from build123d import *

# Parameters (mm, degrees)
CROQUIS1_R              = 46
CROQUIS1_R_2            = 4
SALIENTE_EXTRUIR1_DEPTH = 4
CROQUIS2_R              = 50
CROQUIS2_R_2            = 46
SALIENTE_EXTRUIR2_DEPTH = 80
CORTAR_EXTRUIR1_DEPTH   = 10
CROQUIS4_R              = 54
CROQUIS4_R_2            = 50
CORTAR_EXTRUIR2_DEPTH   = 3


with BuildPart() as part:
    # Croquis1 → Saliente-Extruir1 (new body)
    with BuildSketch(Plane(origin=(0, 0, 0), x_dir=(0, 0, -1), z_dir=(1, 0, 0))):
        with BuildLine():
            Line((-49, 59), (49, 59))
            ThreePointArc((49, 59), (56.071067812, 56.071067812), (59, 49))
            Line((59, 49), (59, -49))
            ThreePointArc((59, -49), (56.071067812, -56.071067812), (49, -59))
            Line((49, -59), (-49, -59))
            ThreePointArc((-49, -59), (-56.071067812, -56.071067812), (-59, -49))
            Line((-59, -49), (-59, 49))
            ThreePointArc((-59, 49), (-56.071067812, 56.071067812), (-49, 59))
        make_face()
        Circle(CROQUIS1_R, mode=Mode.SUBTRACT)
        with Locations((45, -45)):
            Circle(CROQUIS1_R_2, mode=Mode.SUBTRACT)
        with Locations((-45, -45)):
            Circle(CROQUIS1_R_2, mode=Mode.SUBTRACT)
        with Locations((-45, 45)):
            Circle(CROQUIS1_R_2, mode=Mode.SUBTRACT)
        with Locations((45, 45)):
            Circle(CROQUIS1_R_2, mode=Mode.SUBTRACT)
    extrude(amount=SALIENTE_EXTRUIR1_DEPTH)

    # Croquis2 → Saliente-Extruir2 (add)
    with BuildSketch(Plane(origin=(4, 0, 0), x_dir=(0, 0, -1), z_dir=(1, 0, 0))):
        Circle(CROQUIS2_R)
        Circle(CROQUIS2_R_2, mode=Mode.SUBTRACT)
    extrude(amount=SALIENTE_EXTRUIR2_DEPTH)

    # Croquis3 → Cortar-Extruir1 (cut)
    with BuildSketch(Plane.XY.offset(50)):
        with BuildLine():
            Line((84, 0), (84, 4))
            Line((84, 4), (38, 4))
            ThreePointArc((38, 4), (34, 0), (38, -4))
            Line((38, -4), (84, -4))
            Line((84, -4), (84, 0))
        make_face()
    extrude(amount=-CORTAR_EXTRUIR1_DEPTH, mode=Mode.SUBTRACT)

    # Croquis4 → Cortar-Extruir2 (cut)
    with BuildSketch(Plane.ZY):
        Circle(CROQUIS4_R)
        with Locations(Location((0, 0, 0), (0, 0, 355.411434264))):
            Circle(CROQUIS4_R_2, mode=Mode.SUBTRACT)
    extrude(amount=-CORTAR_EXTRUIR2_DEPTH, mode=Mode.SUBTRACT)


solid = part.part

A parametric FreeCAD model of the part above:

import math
import FreeCAD as App
import Part
import Sketcher
from FreeCAD import Vector
Q = App.Units.Quantity

doc = App.newDocument("Part")
body = doc.addObject("PartDesign::Body", "Body")

sketch1 = doc.addObject("Sketcher::SketchObject", "Sketch")
body.addObject(sketch1)
sketch1.AttachmentSupport = (doc.YZ_Plane, [""])
sketch1.MapMode = "FlatFace"
sketch1.addGeometry([
    Part.LineSegment(Vector(59, -49, 0), Vector(59, 49, 0)),
    Part.ArcOfCircle(Part.Circle(Vector(49, 49, 0), Vector(0, 0, 1), 10), math.radians(0), math.radians(90)),
    Part.LineSegment(Vector(49, 59, 0), Vector(-49, 59, 0)),
    Part.ArcOfCircle(Part.Circle(Vector(-49, 49, 0), Vector(0, 0, 1), 10), math.radians(90), math.radians(180)),
    Part.LineSegment(Vector(-59, 49, 0), Vector(-59, -49, 0)),
    Part.ArcOfCircle(Part.Circle(Vector(-49, -49, 0), Vector(0, 0, 1), 10), math.radians(180), math.radians(270)),
    Part.LineSegment(Vector(-49, -59, 0), Vector(49, -59, 0)),
    Part.ArcOfCircle(Part.Circle(Vector(49, -49, 0), Vector(0, 0, 1), 10), math.radians(-90), math.radians(0)),
    Part.Circle(Vector(-45, -45, 0), Vector(0, 0, 1), 4),
    Part.Circle(Vector(0, 0, 0), Vector(0, 0, 1), 46),
    Part.Circle(Vector(-45, 45, 0), Vector(0, 0, 1), 4),
    Part.Circle(Vector(45, -45, 0), Vector(0, 0, 1), 4),
    Part.Circle(Vector(45, 45, 0), Vector(0, 0, 1), 4),
], False)
sketch1.addConstraint([
    Sketcher.Constraint("Tangent", 0, 2, 1, 1),
    Sketcher.Constraint("Tangent", 1, 2, 2, 1),
    Sketcher.Constraint("Tangent", 2, 2, 3, 1),
    Sketcher.Constraint("Tangent", 3, 2, 4, 1),
    Sketcher.Constraint("Tangent", 4, 2, 5, 1),
    Sketcher.Constraint("Tangent", 5, 2, 6, 1),
    Sketcher.Constraint("Tangent", 6, 2, 7, 1),
    Sketcher.Constraint("Tangent", 7, 2, 0, 1),
    Sketcher.Constraint("Vertical", 0),
    Sketcher.Constraint("Horizontal", 2),
    Sketcher.Constraint("Vertical", 4),
    Sketcher.Constraint("Horizontal", 6),
    Sketcher.Constraint("Coincident", 9, 3, -1, 1),
    Sketcher.Constraint("Equal", 1, 3),
    Sketcher.Constraint("Equal", 3, 5),
    Sketcher.Constraint("Equal", 5, 7),
    Sketcher.Constraint("Equal", 8, 10),
    Sketcher.Constraint("Equal", 10, 11),
    Sketcher.Constraint("Equal", 11, 12),
    Sketcher.Constraint("Symmetric", 1, 3, 5, 3, -1, 1),
    Sketcher.Constraint("Symmetric", 10, 3, 11, 3, -1, 1),
    Sketcher.Constraint("Symmetric", 8, 3, 12, 3, -1, 1),
    Sketcher.Constraint("Symmetric", 8, 3, 11, 3, -2),
    Sketcher.Constraint("Equal", 6, 0),
    Sketcher.Constraint("Diameter", 8, Q("8 mm")),
    Sketcher.Constraint("Diameter", 9, Q("92 mm")),
    Sketcher.Constraint("Radius", 1, Q("10 mm")),
    Sketcher.Constraint("DistanceX", 2, 2, 2, 1, Q("98 mm")),
    Sketcher.Constraint("DistanceX", 8, 3, -1, 1, Q("45 mm")),
    Sketcher.Constraint("DistanceY", 8, 3, -1, 1, Q("45 mm")),
])
pad1 = doc.addObject("PartDesign::Pad", "Pad")
body.addObject(pad1)
pad1.Profile = sketch1
pad1.Length = 4

sketch2 = doc.addObject("Sketcher::SketchObject", "Sketch001")
body.addObject(sketch2)
sketch2.AttachmentSupport = (doc.YZ_Plane, [""])
sketch2.MapMode = "FlatFace"
sketch2.AttachmentOffset = App.Placement(Vector(0, 0, 4), App.Rotation())
sketch2.addGeometry([
    Part.Circle(Vector(0, 0, 0), Vector(0, 0, 1), 50),
    Part.Circle(Vector(0, 0, 0), Vector(0, 0, 1), 46),
], False)
sketch2.addConstraint([
    Sketcher.Constraint("Coincident", 0, 3, -1, 1),
    Sketcher.Constraint("Coincident", 1, 3, -1, 1),
    Sketcher.Constraint("Diameter", 0, Q("100 mm")),
    Sketcher.Constraint("Diameter", 1, Q("92 mm")),
])
pad2 = doc.addObject("PartDesign::Pad", "Pad001")
body.addObject(pad2)
pad2.Profile = sketch2
pad2.Length = 80

sketch3 = doc.addObject("Sketcher::SketchObject", "Sketch002")
body.addObject(sketch3)
sketch3.AttachmentSupport = (doc.XY_Plane, [""])
sketch3.MapMode = "FlatFace"
sketch3.AttachmentOffset = App.Placement(Vector(0, 0, 50), App.Rotation())
sketch3.addGeometry([
    Part.LineSegment(Vector(84, 4, 0), Vector(38, 4, 0)),
    Part.ArcOfCircle(Part.Circle(Vector(38, 0, 0), Vector(0, 0, 1), 4), math.radians(90), math.radians(270)),
    Part.LineSegment(Vector(38, -4, 0), Vector(84, -4, 0)),
    Part.LineSegment(Vector(84, -4, 0), Vector(84, 4, 0)),
], False)
sketch3.addConstraint([
    Sketcher.Constraint("Tangent", 0, 2, 1, 1),
    Sketcher.Constraint("Tangent", 1, 2, 2, 1),
    Sketcher.Constraint("Coincident", 2, 2, 3, 1),
    Sketcher.Constraint("Coincident", 3, 2, 0, 1),
    Sketcher.Constraint("Horizontal", 0),
    Sketcher.Constraint("Horizontal", 2),
    Sketcher.Constraint("Vertical", 3),
    Sketcher.Constraint("PointOnObject", 1, 3, -1),
    Sketcher.Constraint("Radius", 1, Q("4 mm")),
    Sketcher.Constraint("DistanceX", 0, 2, 0, 1, Q("46 mm")),
    Sketcher.Constraint("DistanceX", -1, 1, 1, 3, Q("38 mm")),
])
pocket1 = doc.addObject("PartDesign::Pocket", "Pocket")
body.addObject(pocket1)
pocket1.Profile = sketch3
pocket1.Length = 10

sketch4 = doc.addObject("Sketcher::SketchObject", "Sketch003")
body.addObject(sketch4)
sketch4.AttachmentSupport = (doc.YZ_Plane, [""])
sketch4.MapMode = "FlatFace"
sketch4.addGeometry([
    Part.Circle(Vector(0, 0, 0), Vector(0, 0, 1), 54),
    Part.Circle(Vector(0, 0, 0), Vector(0, 0, 1), 50),
], False)
sketch4.addConstraint([
    Sketcher.Constraint("Coincident", 0, 3, -1, 1),
    Sketcher.Constraint("Coincident", 1, 3, -1, 1),
    Sketcher.Constraint("Diameter", 0, Q("108 mm")),
    Sketcher.Constraint("Diameter", 1, Q("100 mm")),
])
pocket2 = doc.addObject("PartDesign::Pocket", "Pocket001")
body.addObject(pocket2)
pocket2.Profile = sketch4
pocket2.Length = 3
pocket2.Reversed = True

doc.recompute()
